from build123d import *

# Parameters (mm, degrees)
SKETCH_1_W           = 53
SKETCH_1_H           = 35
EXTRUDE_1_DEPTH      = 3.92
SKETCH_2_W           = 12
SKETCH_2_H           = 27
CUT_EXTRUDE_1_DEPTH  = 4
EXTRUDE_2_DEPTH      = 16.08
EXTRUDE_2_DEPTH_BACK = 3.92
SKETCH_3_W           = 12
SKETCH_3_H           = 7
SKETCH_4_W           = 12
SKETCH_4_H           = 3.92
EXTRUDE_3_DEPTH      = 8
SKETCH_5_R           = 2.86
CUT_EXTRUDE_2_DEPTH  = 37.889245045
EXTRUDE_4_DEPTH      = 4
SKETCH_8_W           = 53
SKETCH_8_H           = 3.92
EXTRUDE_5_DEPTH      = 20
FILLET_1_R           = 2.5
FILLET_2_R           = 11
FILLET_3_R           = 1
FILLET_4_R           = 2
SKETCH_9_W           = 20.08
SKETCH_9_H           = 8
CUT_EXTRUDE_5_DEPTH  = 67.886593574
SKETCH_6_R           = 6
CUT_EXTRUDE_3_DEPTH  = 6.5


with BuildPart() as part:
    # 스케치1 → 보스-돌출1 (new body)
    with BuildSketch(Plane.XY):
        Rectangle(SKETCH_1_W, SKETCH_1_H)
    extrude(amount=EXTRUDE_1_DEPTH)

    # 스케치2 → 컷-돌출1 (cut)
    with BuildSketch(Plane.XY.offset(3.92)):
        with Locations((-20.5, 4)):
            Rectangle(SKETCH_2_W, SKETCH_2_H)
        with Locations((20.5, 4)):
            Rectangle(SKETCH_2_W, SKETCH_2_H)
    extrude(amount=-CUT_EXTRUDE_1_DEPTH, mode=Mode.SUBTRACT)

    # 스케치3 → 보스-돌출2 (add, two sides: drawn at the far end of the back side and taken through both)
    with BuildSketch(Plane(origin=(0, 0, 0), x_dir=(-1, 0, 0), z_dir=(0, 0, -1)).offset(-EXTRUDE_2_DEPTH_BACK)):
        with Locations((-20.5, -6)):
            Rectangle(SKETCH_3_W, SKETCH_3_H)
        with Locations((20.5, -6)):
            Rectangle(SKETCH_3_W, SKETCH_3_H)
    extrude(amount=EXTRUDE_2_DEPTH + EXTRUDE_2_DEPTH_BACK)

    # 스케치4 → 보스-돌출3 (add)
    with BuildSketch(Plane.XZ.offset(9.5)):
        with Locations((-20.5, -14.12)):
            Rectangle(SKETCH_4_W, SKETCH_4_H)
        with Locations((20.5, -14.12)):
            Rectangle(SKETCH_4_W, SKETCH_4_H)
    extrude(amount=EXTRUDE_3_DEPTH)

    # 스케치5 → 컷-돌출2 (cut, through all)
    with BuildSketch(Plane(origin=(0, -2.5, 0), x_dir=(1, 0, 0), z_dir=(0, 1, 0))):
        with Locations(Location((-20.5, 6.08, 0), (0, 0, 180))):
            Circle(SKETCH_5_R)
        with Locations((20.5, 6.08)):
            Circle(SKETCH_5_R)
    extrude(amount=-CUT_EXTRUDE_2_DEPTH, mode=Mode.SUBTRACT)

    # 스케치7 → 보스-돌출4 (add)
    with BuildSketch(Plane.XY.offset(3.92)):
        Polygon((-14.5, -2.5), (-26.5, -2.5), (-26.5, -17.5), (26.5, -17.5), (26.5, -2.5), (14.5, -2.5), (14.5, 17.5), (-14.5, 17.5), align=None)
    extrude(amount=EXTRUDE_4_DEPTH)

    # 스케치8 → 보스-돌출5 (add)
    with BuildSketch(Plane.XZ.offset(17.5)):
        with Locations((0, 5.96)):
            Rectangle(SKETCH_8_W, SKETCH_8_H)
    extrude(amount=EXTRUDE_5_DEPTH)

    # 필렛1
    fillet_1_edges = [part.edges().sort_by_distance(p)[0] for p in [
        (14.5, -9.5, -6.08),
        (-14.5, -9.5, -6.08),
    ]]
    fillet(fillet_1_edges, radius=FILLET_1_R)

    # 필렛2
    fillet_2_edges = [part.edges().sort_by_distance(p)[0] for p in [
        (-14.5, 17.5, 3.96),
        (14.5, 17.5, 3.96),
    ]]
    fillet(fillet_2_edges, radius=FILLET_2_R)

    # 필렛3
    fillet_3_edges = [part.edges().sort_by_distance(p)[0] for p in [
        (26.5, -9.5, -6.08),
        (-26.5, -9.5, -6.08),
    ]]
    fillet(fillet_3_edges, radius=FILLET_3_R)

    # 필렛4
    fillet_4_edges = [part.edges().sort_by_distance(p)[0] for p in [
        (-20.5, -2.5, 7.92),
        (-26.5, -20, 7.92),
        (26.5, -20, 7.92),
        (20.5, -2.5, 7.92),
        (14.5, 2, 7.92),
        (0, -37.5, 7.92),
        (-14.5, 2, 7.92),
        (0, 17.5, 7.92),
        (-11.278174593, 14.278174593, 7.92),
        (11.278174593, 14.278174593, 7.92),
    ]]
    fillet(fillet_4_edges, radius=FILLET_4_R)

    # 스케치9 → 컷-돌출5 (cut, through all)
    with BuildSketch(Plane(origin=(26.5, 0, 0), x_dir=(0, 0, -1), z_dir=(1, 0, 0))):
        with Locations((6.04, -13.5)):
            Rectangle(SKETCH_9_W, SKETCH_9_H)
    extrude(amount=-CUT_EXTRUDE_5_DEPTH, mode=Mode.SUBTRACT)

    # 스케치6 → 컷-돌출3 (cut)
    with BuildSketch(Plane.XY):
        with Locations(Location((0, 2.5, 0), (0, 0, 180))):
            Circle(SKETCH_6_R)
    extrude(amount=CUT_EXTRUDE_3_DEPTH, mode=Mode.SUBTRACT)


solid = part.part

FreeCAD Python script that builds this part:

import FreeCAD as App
import Part
import Sketcher
Q = App.Units.Quantity


def edges_at(feature, points):
    """Names of the edges that pass closest to the given points."""
    edges = feature.Shape.Edges
    near = lambda p: min(range(len(edges)), key=lambda i: edges[i].distToShape(Part.Vertex(*p))[0])
    return sorted({f"Edge{near(p) + 1}" for p in points})

doc = App.newDocument("Part")
body = doc.addObject("PartDesign::Body", "Body")

# Sketch on XY plane
sketch1 = doc.addObject("Sketcher::SketchObject", "Sketch")
body.addObject(sketch1)
sketch1.AttachmentSupport = (doc.XY_Plane, [""])
sketch1.MapMode = "FlatFace"
sketch1.addGeometry([
    Part.LineSegment(App.Vector(-26, 18, 0), App.Vector(-26, -18, 0)),
    Part.LineSegment(App.Vector(-26, -18, 0), App.Vector(26, -18, 0)),
    Part.LineSegment(App.Vector(26, -18, 0), App.Vector(26, 18, 0)),
    Part.LineSegment(App.Vector(26, 18, 0), App.Vector(-26, 18, 0)),
], False)
sketch1.addConstraint([
    Sketcher.Constraint("Coincident", 0, 2, 1, 1),
    Sketcher.Constraint("Coincident", 1, 2, 2, 1),
    Sketcher.Constraint("Coincident", 2, 2, 3, 1),
    Sketcher.Constraint("Coincident", 3, 2, 0, 1),
    Sketcher.Constraint("Vertical", 0),
    Sketcher.Constraint("Horizontal", 1),
    Sketcher.Constraint("Vertical", 2),
    Sketcher.Constraint("Horizontal", 3),
    Sketcher.Constraint("Symmetric", 0, 2, 2, 2, -1, 1),
    Sketcher.Constraint("DistanceX", 1, 1, 1, 2, Q("53 mm")),
    Sketcher.Constraint("DistanceY", 0, 2, 0, 1, Q("35 mm")),
])
pad1 = doc.addObject("PartDesign::Pad", "Pad")
body.addObject(pad1)
pad1.Profile = sketch1
pad1.Length = 3.92

# Sketch on XY plane
sketch2 = doc.addObject("Sketcher::SketchObject", "Sketch001")
body.addObject(sketch2)
sketch2.AttachmentSupport = (doc.XY_Plane, [""])
sketch2.MapMode = "FlatFace"
sketch2.AttachmentOffset = App.Placement(App.Vector(0, 0, 3.92), App.Rotation())
sketch2.addGeometry([
    Part.LineSegment(App.Vector(-26, 18, 0), App.Vector(-26, -10, 0)),  # 0
    Part.LineSegment(App.Vector(-26, -10, 0), App.Vector(-14, -10, 0)),  # 1
    Part.LineSegment(App.Vector(-14, -10, 0), App.Vector(-14, 18, 0)),  # 2
    Part.LineSegment(App.Vector(-14, 18, 0), App.Vector(-26, 18, 0)),  # 3
    Part.LineSegment(App.Vector(14, 18, 0), App.Vector(14, -10, 0)),  # 4
    Part.LineSegment(App.Vector(14, -10, 0), App.Vector(26, -10, 0)),  # 5
    Part.LineSegment(App.Vector(26, -10, 0), App.Vector(26, 18, 0)),  # 6
    Part.LineSegment(App.Vector(26, 18, 0), App.Vector(14, 18, 0)),  # 7
], False)
sketch2.addConstraint([
    Sketcher.Constraint("Coincident", 0, 2, 1, 1),
    Sketcher.Constraint("Coincident", 1, 2, 2, 1),
    Sketcher.Constraint("Coincident", 2, 2, 3, 1),
    Sketcher.Constraint("Coincident", 3, 2, 0, 1),
    Sketcher.Constraint("Coincident", 4, 2, 5, 1),
    Sketcher.Constraint("Coincident", 5, 2, 6, 1),
    Sketcher.Constraint("Coincident", 6, 2, 7, 1),
    Sketcher.Constraint("Coincident", 7, 2, 4, 1),
    Sketcher.Constraint("Vertical", 0),
    Sketcher.Constraint("Horizontal", 1),
    Sketcher.Constraint("Vertical", 2),
    Sketcher.Constraint("Horizontal", 3),
    Sketcher.Constraint("Vertical", 4),
    Sketcher.Constraint("Horizontal", 5),
    Sketcher.Constraint("Vertical", 6),
    Sketcher.Constraint("Horizontal", 7),
    Sketcher.Constraint("Symmetric", 1, 2, 4, 2, -2),
    Sketcher.Constraint("Symmetric", 3, 2, 6, 2, -2),
    Sketcher.Constraint("DistanceX", 1, 1, 1, 2, Q("12 mm")),
    Sketcher.Constraint("DistanceY", 0, 2, 0, 1, Q("27 mm")),
    Sketcher.Constraint("DistanceX", 1, 2, 4, 2, Q("29 mm")),
    Sketcher.Constraint("DistanceY", 0, 2, -1, 1, Q("9.5 mm")),
])
pocket1 = doc.addObject("PartDesign::Pocket", "Pocket")
body.addObject(pocket1)
pocket1.Profile = sketch2
pocket1.Length = 4

# Sketch on XY plane
sketch3 = doc.addObject("Sketcher::SketchObject", "Sketch002")
body.addObject(sketch3)
sketch3.AttachmentSupport = (doc.XY_Plane, [""])
sketch3.MapMode = "FlatFace"
sketch3.addGeometry([
    Part.LineSegment(App.Vector(26, -2, 0), App.Vector(26, -10, 0)),  # 0
    Part.LineSegment(App.Vector(26, -10, 0), App.Vector(14, -10, 0)),  # 1
    Part.LineSegment(App.Vector(14, -10, 0), App.Vector(14, -2, 0)),  # 2
    Part.LineSegment(App.Vector(14, -2, 0), App.Vector(26, -2, 0)),  # 3
    Part.LineSegment(App.Vector(-14, -2, 0), App.Vector(-14, -10, 0)),  # 4
    Part.LineSegment(App.Vector(-14, -10, 0), App.Vector(-26, -10, 0)),  # 5
    Part.LineSegment(App.Vector(-26, -10, 0), App.Vector(-26, -2, 0)),  # 6
    Part.LineSegment(App.Vector(-26, -2, 0), App.Vector(-14, -2, 0)),  # 7
], False)
sketch3.addConstraint([
    Sketcher.Constraint("Coincident", 0, 2, 1, 1),
    Sketcher.Constraint("Coincident", 1, 2, 2, 1),
    Sketcher.Constraint("Coincident", 2, 2, 3, 1),
    Sketcher.Constraint("Coincident", 3, 2, 0, 1),
    Sketcher.Constraint("Coincident", 4, 2, 5, 1),
    Sketcher.Constraint("Coincident", 5, 2, 6, 1),
    Sketcher.Constraint("Coincident", 6, 2, 7, 1),
    Sketcher.Constraint("Coincident", 7, 2, 4, 1),
    Sketcher.Constraint("Vertical", 0),
    Sketcher.Constraint("Horizontal", 1),
    Sketcher.Constraint("Vertical", 2),
    Sketcher.Constraint("Horizontal", 3),
    Sketcher.Constraint("Vertical", 4),
    Sketcher.Constraint("Horizontal", 5),
    Sketcher.Constraint("Vertical", 6),
    Sketcher.Constraint("Horizontal", 7),
    Sketcher.Constraint("Symmetric", 1, 2, 4, 2, -2),
    Sketcher.Constraint("Symmetric", 3, 2, 6, 2, -2),
    Sketcher.Constraint("DistanceX", 1, 2, 1, 1, Q("12 mm")),
    Sketcher.Constraint("DistanceY", 0, 2, 0, 1, Q("7 mm")),
    Sketcher.Constraint("DistanceX", 4, 2, 1, 2, Q("29 mm")),
    Sketcher.Constraint("DistanceY", 0, 2, -1, 1, Q("9.5 mm")),
])
pad2 = doc.addObject("PartDesign::Pad", "Pad001")
body.addObject(pad2)
pad2.Profile = sketch3
pad2.Type = "TwoLengths"
pad2.Length = 16.08
pad2.Length2 = 3.92
pad2.Reversed = True

# Sketch on XZ plane
sketch4 = doc.addObject("Sketcher::SketchObject", "Sketch003")
body.addObject(sketch4)
sketch4.AttachmentSupport = (doc.XZ_Plane, [""])
sketch4.MapMode = "FlatFace"
sketch4.AttachmentOffset = App.Placement(App.Vector(0, 0, 9.5), App.Rotation())
sketch4.addGeometry([
    Part.LineSegment(App.Vector(-26.5, -12.2, 0), App.Vector(-26.5, -16.1, 0)),  # 0
    Part.LineSegment(App.Vector(-26.5, -16.1, 0), App.Vector(-14.5, -16.1, 0)),  # 1
    Part.LineSegment(App.Vector(-14.5, -16.1, 0), App.Vector(-14.5, -12.2, 0)),  # 2
    Part.LineSegment(App.Vector(-14.5, -12.2, 0), App.Vector(-26.5, -12.2, 0)),  # 3
    Part.LineSegment(App.Vector(14.5, -12.2, 0), App.Vector(14.5, -16.1, 0)),  # 4
    Part.LineSegment(App.Vector(14.5, -16.1, 0), App.Vector(26.5, -16.1, 0)),  # 5
    Part.LineSegment(App.Vector(26.5, -16.1, 0), App.Vector(26.5, -12.2, 0)),  # 6
    Part.LineSegment(App.Vector(26.5, -12.2, 0), App.Vector(14.5, -12.2, 0)),  # 7
], False)
sketch4.addConstraint([
    Sketcher.Constraint("Coincident", 0, 2, 1, 1),
    Sketcher.Constraint("Coincident", 1, 2, 2, 1),
    Sketcher.Constraint("Coincident", 2, 2, 3, 1),
    Sketcher.Constraint("Coincident", 3, 2, 0, 1),
    Sketcher.Constraint("Coincident", 4, 2, 5, 1),
    Sketcher.Constraint("Coincident", 5, 2, 6, 1),
    Sketcher.Constraint("Coincident", 6, 2, 7, 1),
    Sketcher.Constraint("Coincident", 7, 2, 4, 1),
    Sketcher.Constraint("Vertical", 0),
    Sketcher.Constraint("Horizontal", 1),
    Sketcher.Constraint("Vertical", 2),
    Sketcher.Constraint("Horizontal", 3),
    Sketcher.Constraint("Vertical", 4),
    Sketcher.Constraint("Horizontal", 5),
    Sketcher.Constraint("Vertical", 6),
    Sketcher.Constraint("Horizontal", 7),
    Sketcher.Constraint("Symmetric", 1, 2, 4, 2, -2),
    Sketcher.Constraint("Symmetric", 3, 2, 6, 2, -2),
    Sketcher.Constraint("DistanceX", 1, 1, 1, 2, Q("12 mm")),
    Sketcher.Constraint("DistanceX", 1, 2, 4, 2, Q("29 mm")),
    Sketcher.Constraint("DistanceY", 0, 2, 0, 1, Q("3.92 mm")),
    Sketcher.Constraint("DistanceY", 0, 2, -1, 1, Q("16.08 mm")),
])
pad3 = doc.addObject("PartDesign::Pad", "Pad002")
body.addObject(pad3)
pad3.Profile = sketch4
pad3.Length = 8

# Sketch on XZ plane
sketch5 = doc.addObject("Sketcher::SketchObject", "Sketch004")
body.addObject(sketch5)
sketch5.AttachmentSupport = (doc.XZ_Plane, [""])
sketch5.MapMode = "FlatFace"
sketch5.AttachmentOffset = App.Placement(App.Vector(0, 0, 2.5), App.Rotation())
sketch5.addGeometry([
    Part.Circle(App.Vector(-20.5, -6.1, 0), App.Vector(0, 0, 1), 2.9),
    Part.Circle(App.Vector(20.5, -6.1, 0), App.Vector(0, 0, 1), 2.9),
], False)
sketch5.addConstraint([
    Sketcher.Constraint("Equal", 0, 1),
    Sketcher.Constraint("Symmetric", 0, 3, 1, 3, -2),
    Sketcher.Constraint("Diameter", 0, Q("5.72 mm")),
    Sketcher.Constraint("DistanceX", 0, 3, 1, 3, Q("41 mm")),
    Sketcher.Constraint("DistanceY", 0, 3, -1, 1, Q("6.08 mm")),
])
pocket2 = doc.addObject("PartDesign::Pocket", "Pocket001")
body.addObject(pocket2)
pocket2.Profile = sketch5
pocket2.Type = "ThroughAll"
pocket2.Reversed = True

# Sketch on XY plane
sketch6 = doc.addObject("Sketcher::SketchObject", "Sketch005")
body.addObject(sketch6)
sketch6.AttachmentSupport = (doc.XY_Plane, [""])
sketch6.MapMode = "FlatFace"
sketch6.AttachmentOffset = App.Placement(App.Vector(0, 0, 3.92), App.Rotation())
sketch6.addGeometry([
    Part.LineSegment(App.Vector(-14, -2, 0), App.Vector(-26, -2, 0)),  # 0
    Part.LineSegment(App.Vector(-26, -2, 0), App.Vector(-26, -18, 0)),  # 1
    Part.LineSegment(App.Vector(-26, -18, 0), App.Vector(26, -18, 0)),  # 2
    Part.LineSegment(App.Vector(26, -18, 0), App.Vector(26, -2, 0)),  # 3
    Part.LineSegment(App.Vector(26, -2, 0), App.Vector(14, -2, 0)),  # 4
    Part.LineSegment(App.Vector(14, -2, 0), App.Vector(14, 18, 0)),  # 5
    Part.LineSegment(App.Vector(14, 18, 0), App.Vector(-14, 18, 0)),  # 6
    Part.LineSegment(App.Vector(-14, 18, 0), App.Vector(-14, -2, 0)),  # 7
], False)
sketch6.addConstraint([
    Sketcher.Constraint("Coincident", 0, 2, 1, 1),
    Sketcher.Constraint("Coincident", 1, 2, 2, 1),
    Sketcher.Constraint("Coincident", 2, 2, 3, 1),
    Sketcher.Constraint("Coincident", 3, 2, 4, 1),
    Sketcher.Constraint("Coincident", 4, 2, 5, 1),
    Sketcher.Constraint("Coincident", 5, 2, 6, 1),
    Sketcher.Constraint("Coincident", 6, 2, 7, 1),
    Sketcher.Constraint("Coincident", 7, 2, 0, 1),
    Sketcher.Constraint("Horizontal", 0),
    Sketcher.Constraint("Vertical", 1),
    Sketcher.Constraint("Horizontal", 2),
    Sketcher.Constraint("Vertical", 3),
    Sketcher.Constraint("Horizontal", 4),
    Sketcher.Constraint("Vertical", 5),
    Sketcher.Constraint("Horizontal", 6),
    Sketcher.Constraint("Vertical", 7),
    Sketcher.Constraint("Symmetric", 0, 2, 3, 2, -2),
    Sketcher.Constraint("Equal", 0, 4),
    Sketcher.Constraint("DistanceX", 0, 2, 0, 1, Q("12 mm")),
    Sketcher.Constraint("DistanceX", 2, 1, 2, 2, Q("53 mm")),
    Sketcher.Constraint("DistanceY", 1, 2, 1, 1, Q("15 mm")),
    Sketcher.Constraint("DistanceY", 5, 1, 5, 2, Q("20 mm")),
    Sketcher.Constraint("DistanceY", 0, 2, -1, 1, Q("2.5 mm")),
])
pad4 = doc.addObject("PartDesign::Pad", "Pad003")
body.addObject(pad4)
pad4.Profile = sketch6
pad4.Length = 4

# Sketch on XZ plane
sketch7 = doc.addObject("Sketcher::SketchObject", "Sketch006")
body.addObject(sketch7)
sketch7.AttachmentSupport = (doc.XZ_Plane, [""])
sketch7.MapMode = "FlatFace"
sketch7.AttachmentOffset = App.Placement(App.Vector(0, 0, 17.5), App.Rotation())
sketch7.addGeometry([
    Part.LineSegment(App.Vector(-26.5, 7.9, 0), App.Vector(-26.5, 4, 0)),
    Part.LineSegment(App.Vector(-26.5, 4, 0), App.Vector(26.5, 4, 0)),
    Part.LineSegment(App.Vector(26.5, 4, 0), App.Vector(26.5, 7.9, 0)),
    Part.LineSegment(App.Vector(26.5, 7.9, 0), App.Vector(-26.5, 7.9, 0)),
], False)
sketch7.addConstraint([
    Sketcher.Constraint("Coincident", 0, 2, 1, 1),
    Sketcher.Constraint("Coincident", 1, 2, 2, 1),
    Sketcher.Constraint("Coincident", 2, 2, 3, 1),
    Sketcher.Constraint("Coincident", 3, 2, 0, 1),
    Sketcher.Constraint("Vertical", 0),
    Sketcher.Constraint("Horizontal", 1),
    Sketcher.Constraint("Vertical", 2),
    Sketcher.Constraint("Horizontal", 3),
    Sketcher.Constraint("DistanceX", 1, 1, 1, 2, Q("53 mm")),
    Sketcher.Constraint("DistanceY", -1, 1, 0, 2, Q("4 mm")),
    Sketcher.Constraint("DistanceY", 0, 2, 0, 1, Q("3.92 mm")),
    Sketcher.Constraint("DistanceX", 0, 2, -1, 1, Q("26.5 mm")),
])
pad5 = doc.addObject("PartDesign::Pad", "Pad004")
body.addObject(pad5)
pad5.Profile = sketch7
pad5.Length = 20
doc.recompute()

fillet = doc.addObject("PartDesign::Fillet", "Fillet")
body.addObject(fillet)
fillet.Base = (pad5, edges_at(pad5, [(14.5, -9.5, -6.08), (-14.5, -9.5, -6.08)]))
fillet.Radius = 2.5
doc.recompute()

fillet2 = doc.addObject("PartDesign::Fillet", "Fillet001")
body.addObject(fillet2)
fillet2.Base = (fillet, edges_at(fillet, [(-14.5, 17.5, 3.96), (14.5, 17.5, 3.96)]))
fillet2.Radius = 11
doc.recompute()

fillet3 = doc.addObject("PartDesign::Fillet", "Fillet002")
body.addObject(fillet3)
fillet3.Base = (fillet2, edges_at(fillet2, [(26.5, -9.5, -6.08), (-26.5, -9.5, -6.08)]))
fillet3.Radius = 1
doc.recompute()

fillet4 = doc.addObject("PartDesign::Fillet", "Fillet003")
body.addObject(fillet4)
fillet4.Base = (fillet3, edges_at(fillet3, [
    (-20.5, -2.5, 7.92),
    (-26.5, -20, 7.92),
    (26.5, -20, 7.92),
    (20.5, -2.5, 7.92),
    (14.5, 2, 7.92),
    (0, -37.5, 7.92),
    (-14.5, 2, 7.92),
    (0, 17.5, 7.92),
    (-11.278, 14.278, 7.92),
    (11.278, 14.278, 7.92),
]))
fillet4.Radius = 2

# Sketch on YZ plane
sketch8 = doc.addObject("Sketcher::SketchObject", "Sketch007")
body.addObject(sketch8)
sketch8.AttachmentSupport = (doc.YZ_Plane, [""])
sketch8.MapMode = "FlatFace"
sketch8.AttachmentOffset = App.Placement(App.Vector(0, 0, 26.5), App.Rotation())
sketch8.addGeometry([
    Part.LineSegment(App.Vector(-10, 4, 0), App.Vector(-18, 4, 0)),
    Part.LineSegment(App.Vector(-18, 4, 0), App.Vector(-18, -16, 0)),
    Part.LineSegment(App.Vector(-18, -16, 0), App.Vector(-10, -16, 0)),
    Part.LineSegment(App.Vector(-10, -16, 0), App.Vector(-10, 4, 0)),
], False)
sketch8.addConstraint([
    Sketcher.Constraint("Coincident", 0, 2, 1, 1),
    Sketcher.Constraint("Coincident", 1, 2, 2, 1),
    Sketcher.Constraint("Coincident", 2, 2, 3, 1),
    Sketcher.Constraint("Coincident", 3, 2, 0, 1),
    Sketcher.Constraint("Horizontal", 0),
    Sketcher.Constraint("Vertical", 1),
    Sketcher.Constraint("Horizontal", 2),
    Sketcher.Constraint("Vertical", 3),
    Sketcher.Constraint("DistanceX", 0, 2, 0, 1, Q("8 mm")),
    Sketcher.Constraint("DistanceY", -1, 1, 0, 2, Q("4 mm")),
    Sketcher.Constraint("DistanceY", 1, 2, 1, 1, Q("20.08 mm")),
    Sketcher.Constraint("DistanceX", 0, 2, -1, 1, Q("17.5 mm")),
])
pocket3 = doc.addObject("PartDesign::Pocket", "Pocket002")
body.addObject(pocket3)
pocket3.Profile = sketch8
pocket3.Type = "ThroughAll"

# Sketch on XY plane
sketch9 = doc.addObject("Sketcher::SketchObject", "Sketch008")
body.addObject(sketch9)
sketch9.AttachmentSupport = (doc.XY_Plane, [""])
sketch9.MapMode = "FlatFace"
sketch9.addGeometry(Part.Circle(App.Vector(0, 2, 0), App.Vector(0, 0, 1), 6), False)
sketch9.addConstraint([
    Sketcher.Constraint("PointOnObject", 0, 3, -2),
    Sketcher.Constraint("Diameter", 0, Q("12 mm")),
    Sketcher.Constraint("DistanceY", -1, 1, 0, 3, Q("2.5 mm")),
])
pocket4 = doc.addObject("PartDesign::Pocket", "Pocket003")
body.addObject(pocket4)
pocket4.Profile = sketch9
pocket4.Length = 6.5
pocket4.Reversed = True

doc.recompute()
